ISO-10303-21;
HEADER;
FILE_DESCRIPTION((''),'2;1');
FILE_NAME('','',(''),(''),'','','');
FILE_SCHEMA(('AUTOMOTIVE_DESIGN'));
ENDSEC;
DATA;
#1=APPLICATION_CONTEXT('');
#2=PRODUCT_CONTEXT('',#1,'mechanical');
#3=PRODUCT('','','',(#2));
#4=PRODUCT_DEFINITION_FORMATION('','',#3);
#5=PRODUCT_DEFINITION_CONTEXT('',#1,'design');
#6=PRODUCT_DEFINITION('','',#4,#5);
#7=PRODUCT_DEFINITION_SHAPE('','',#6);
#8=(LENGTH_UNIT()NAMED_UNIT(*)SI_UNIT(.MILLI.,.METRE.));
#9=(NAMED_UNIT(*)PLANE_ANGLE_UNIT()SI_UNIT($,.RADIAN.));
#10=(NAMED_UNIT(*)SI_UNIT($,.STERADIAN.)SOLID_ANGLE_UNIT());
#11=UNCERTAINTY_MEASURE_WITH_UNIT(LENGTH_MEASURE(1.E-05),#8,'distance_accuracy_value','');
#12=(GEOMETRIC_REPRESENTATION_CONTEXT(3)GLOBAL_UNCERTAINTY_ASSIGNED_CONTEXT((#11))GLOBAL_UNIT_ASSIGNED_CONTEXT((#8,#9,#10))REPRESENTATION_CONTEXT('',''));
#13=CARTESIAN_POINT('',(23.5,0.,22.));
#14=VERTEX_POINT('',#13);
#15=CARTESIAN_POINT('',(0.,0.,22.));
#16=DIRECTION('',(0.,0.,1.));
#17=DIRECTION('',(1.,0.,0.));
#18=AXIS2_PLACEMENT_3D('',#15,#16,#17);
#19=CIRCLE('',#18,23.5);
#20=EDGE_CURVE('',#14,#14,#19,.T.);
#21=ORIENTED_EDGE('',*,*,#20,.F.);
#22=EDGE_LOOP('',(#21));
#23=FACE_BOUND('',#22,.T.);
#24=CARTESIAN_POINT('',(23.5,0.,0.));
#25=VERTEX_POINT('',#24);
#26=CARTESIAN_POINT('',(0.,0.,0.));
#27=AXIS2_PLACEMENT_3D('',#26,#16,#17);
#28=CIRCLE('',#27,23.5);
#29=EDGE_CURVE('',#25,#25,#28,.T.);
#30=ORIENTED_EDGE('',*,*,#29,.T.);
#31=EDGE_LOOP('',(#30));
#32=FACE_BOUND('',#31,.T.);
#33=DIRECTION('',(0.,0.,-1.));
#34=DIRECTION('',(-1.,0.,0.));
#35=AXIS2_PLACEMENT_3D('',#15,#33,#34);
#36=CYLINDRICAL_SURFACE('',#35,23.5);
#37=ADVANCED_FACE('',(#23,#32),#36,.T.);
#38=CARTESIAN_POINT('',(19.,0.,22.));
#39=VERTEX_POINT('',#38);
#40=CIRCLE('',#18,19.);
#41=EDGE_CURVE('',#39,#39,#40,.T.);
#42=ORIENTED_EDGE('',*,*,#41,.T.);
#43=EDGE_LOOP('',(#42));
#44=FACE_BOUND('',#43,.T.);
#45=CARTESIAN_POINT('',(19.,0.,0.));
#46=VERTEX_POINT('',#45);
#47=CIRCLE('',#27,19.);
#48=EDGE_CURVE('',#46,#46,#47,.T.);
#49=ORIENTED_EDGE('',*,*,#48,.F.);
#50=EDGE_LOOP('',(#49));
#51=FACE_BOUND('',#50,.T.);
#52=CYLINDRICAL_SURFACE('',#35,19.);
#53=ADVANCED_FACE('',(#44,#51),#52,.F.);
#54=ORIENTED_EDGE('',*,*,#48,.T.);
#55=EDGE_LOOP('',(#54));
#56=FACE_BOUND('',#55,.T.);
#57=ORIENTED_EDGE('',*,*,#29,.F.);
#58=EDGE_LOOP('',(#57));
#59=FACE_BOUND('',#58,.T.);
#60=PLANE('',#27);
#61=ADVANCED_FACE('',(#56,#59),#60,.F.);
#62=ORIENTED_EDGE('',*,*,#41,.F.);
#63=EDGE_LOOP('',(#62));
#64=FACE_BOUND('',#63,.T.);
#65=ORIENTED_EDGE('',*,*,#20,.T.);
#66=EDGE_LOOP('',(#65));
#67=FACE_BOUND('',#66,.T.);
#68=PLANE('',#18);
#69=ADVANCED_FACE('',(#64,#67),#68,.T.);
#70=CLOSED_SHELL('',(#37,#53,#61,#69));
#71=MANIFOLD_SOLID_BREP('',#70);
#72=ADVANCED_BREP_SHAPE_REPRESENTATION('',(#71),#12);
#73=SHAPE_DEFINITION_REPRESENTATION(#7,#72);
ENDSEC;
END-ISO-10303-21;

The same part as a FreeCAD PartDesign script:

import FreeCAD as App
import Part
import Sketcher
from FreeCAD import Vector

doc = App.newDocument("Part")
body = doc.addObject("PartDesign::Body", "Body")

sketch1 = body.newObject("Sketcher::SketchObject", "Sketch")
sketch1.AttachmentSupport = (doc.getObject("XY_Plane"), [""])
sketch1.MapMode = "FlatFace"
sketch1.addGeometry(Part.Circle(Vector(0, 0, 0), Vector(0, 0, 1), 23.5), False)
sketch1.addGeometry(Part.Circle(Vector(0, 0, 0), Vector(0, 0, 1), 19), False)
sketch1.addConstraint(Sketcher.Constraint("Coincident", 0, 3, -1, 1))
sketch1.addConstraint(Sketcher.Constraint("Coincident", 1, 3, -1, 1))
sketch1.addConstraint(Sketcher.Constraint("Diameter", 0, 47.0))
sketch1.addConstraint(Sketcher.Constraint("Diameter", 1, 38.0))
pad1 = body.newObject("PartDesign::Pad", "Pad")
pad1.Profile = sketch1
pad1.Length = 22

doc.recompute()
